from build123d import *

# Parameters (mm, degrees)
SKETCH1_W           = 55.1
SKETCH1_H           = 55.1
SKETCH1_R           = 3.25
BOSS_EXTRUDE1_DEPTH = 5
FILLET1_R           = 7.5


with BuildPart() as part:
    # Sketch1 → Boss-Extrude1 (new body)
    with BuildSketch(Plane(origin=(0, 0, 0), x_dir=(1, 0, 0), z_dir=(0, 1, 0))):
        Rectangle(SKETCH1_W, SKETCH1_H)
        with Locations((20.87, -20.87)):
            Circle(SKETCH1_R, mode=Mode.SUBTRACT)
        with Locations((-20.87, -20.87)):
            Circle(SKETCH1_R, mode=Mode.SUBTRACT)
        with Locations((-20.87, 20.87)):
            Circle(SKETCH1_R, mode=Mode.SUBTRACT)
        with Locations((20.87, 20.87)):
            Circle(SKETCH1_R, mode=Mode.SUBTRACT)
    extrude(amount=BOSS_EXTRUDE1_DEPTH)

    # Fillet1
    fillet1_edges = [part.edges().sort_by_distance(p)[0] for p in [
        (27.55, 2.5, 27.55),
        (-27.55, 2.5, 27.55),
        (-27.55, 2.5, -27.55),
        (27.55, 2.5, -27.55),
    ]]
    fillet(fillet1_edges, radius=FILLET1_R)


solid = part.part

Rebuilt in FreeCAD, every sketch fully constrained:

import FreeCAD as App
import Part
import Sketcher

V = App.Vector
Q = App.Units.Quantity


def edges_at(feature, points):
    """Names of the edges that pass closest to the given points."""
    edges = feature.Shape.Edges
    near = lambda p: min(range(len(edges)), key=lambda i: edges[i].distToShape(Part.Vertex(*p))[0])
    return sorted({f"Edge{near(p) + 1}" for p in points})


def add_polygon(sketch, points):
    """Adds a closed chain of lines whose ends are joined by coincident constraints."""
    first, n = sketch.GeometryCount, len(points)
    for a, b in zip(points, points[1:] + points[:1]):
        sketch.addGeometry(Part.LineSegment(App.Vector(*a, 0), App.Vector(*b, 0)), False)
    for i in range(n):
        sketch.addConstraint(Sketcher.Constraint("Coincident", first + i, 2, first + (i + 1) % n, 1))

doc = App.newDocument("Part")
body = doc.addObject("PartDesign::Body", "Body")

# Sketch on XZ plane
sketch1 = body.newObject("Sketcher::SketchObject", "Sketch")
sketch1.AttachmentSupport = (doc.getObject("XZ_Plane"), [""])
sketch1.MapMode = "FlatFace"
add_polygon(sketch1, [(-27.6, -27.6), (-27.6, 27.6), (27.6, 27.6), (27.6, -27.6)])  # lines 0-3
sketch1.addGeometry(Part.Circle(V(-20.9, 20.9, 0), V(0, 0, 1), 3.2), False)  # 4
sketch1.addGeometry(Part.Circle(V(20.9, 20.9, 0), V(0, 0, 1), 3.2), False)  # 5
sketch1.addGeometry(Part.Circle(V(-20.9, -20.9, 0), V(0, 0, 1), 3.2), False)  # 6
sketch1.addGeometry(Part.Circle(V(20.9, -20.9, 0), V(0, 0, 1), 3.2), False)  # 7
sketch1.addConstraint([
    Sketcher.Constraint("Vertical", 0),
    Sketcher.Constraint("Horizontal", 1),
    Sketcher.Constraint("Vertical", 2),
    Sketcher.Constraint("Horizontal", 3),
    Sketcher.Constraint("Equal", 4, 5),
    Sketcher.Constraint("Equal", 5, 6),
    Sketcher.Constraint("Equal", 6, 7),
    Sketcher.Constraint("Symmetric", 5, 3, 6, 3, -1, 1),
    Sketcher.Constraint("Symmetric", 4, 3, 7, 3, -1, 1),
    Sketcher.Constraint("Symmetric", 0, 2, 2, 2, -1, 1),
    Sketcher.Constraint("Symmetric", 4, 3, 5, 3, -2),
    Sketcher.Constraint("Equal", 3, 0),
    Sketcher.Constraint("Diameter", 4, Q("6.5 mm")),
    Sketcher.Constraint("DistanceX", 1, 1, 1, 2, Q("55.1 mm")),
    Sketcher.Constraint("DistanceX", 4, 3, -1, 1, Q("20.87 mm")),
    Sketcher.Constraint("DistanceY", -1, 1, 4, 3, Q("20.87 mm")),
])
pad1 = body.newObject("PartDesign::Pad", "Pad")
pad1.Profile = sketch1
pad1.Length = 5
pad1.Reversed = True
doc.recompute()

fillet = body.newObject("PartDesign::Fillet", "Fillet")
fillet.Base = (pad1, edges_at(pad1, [
    (27.55, 2.5, 27.55),
    (-27.55, 2.5, 27.55),
    (-27.55, 2.5, -27.55),
    (27.55, 2.5, -27.55),
]))
fillet.Radius = 7.5

doc.recompute()
